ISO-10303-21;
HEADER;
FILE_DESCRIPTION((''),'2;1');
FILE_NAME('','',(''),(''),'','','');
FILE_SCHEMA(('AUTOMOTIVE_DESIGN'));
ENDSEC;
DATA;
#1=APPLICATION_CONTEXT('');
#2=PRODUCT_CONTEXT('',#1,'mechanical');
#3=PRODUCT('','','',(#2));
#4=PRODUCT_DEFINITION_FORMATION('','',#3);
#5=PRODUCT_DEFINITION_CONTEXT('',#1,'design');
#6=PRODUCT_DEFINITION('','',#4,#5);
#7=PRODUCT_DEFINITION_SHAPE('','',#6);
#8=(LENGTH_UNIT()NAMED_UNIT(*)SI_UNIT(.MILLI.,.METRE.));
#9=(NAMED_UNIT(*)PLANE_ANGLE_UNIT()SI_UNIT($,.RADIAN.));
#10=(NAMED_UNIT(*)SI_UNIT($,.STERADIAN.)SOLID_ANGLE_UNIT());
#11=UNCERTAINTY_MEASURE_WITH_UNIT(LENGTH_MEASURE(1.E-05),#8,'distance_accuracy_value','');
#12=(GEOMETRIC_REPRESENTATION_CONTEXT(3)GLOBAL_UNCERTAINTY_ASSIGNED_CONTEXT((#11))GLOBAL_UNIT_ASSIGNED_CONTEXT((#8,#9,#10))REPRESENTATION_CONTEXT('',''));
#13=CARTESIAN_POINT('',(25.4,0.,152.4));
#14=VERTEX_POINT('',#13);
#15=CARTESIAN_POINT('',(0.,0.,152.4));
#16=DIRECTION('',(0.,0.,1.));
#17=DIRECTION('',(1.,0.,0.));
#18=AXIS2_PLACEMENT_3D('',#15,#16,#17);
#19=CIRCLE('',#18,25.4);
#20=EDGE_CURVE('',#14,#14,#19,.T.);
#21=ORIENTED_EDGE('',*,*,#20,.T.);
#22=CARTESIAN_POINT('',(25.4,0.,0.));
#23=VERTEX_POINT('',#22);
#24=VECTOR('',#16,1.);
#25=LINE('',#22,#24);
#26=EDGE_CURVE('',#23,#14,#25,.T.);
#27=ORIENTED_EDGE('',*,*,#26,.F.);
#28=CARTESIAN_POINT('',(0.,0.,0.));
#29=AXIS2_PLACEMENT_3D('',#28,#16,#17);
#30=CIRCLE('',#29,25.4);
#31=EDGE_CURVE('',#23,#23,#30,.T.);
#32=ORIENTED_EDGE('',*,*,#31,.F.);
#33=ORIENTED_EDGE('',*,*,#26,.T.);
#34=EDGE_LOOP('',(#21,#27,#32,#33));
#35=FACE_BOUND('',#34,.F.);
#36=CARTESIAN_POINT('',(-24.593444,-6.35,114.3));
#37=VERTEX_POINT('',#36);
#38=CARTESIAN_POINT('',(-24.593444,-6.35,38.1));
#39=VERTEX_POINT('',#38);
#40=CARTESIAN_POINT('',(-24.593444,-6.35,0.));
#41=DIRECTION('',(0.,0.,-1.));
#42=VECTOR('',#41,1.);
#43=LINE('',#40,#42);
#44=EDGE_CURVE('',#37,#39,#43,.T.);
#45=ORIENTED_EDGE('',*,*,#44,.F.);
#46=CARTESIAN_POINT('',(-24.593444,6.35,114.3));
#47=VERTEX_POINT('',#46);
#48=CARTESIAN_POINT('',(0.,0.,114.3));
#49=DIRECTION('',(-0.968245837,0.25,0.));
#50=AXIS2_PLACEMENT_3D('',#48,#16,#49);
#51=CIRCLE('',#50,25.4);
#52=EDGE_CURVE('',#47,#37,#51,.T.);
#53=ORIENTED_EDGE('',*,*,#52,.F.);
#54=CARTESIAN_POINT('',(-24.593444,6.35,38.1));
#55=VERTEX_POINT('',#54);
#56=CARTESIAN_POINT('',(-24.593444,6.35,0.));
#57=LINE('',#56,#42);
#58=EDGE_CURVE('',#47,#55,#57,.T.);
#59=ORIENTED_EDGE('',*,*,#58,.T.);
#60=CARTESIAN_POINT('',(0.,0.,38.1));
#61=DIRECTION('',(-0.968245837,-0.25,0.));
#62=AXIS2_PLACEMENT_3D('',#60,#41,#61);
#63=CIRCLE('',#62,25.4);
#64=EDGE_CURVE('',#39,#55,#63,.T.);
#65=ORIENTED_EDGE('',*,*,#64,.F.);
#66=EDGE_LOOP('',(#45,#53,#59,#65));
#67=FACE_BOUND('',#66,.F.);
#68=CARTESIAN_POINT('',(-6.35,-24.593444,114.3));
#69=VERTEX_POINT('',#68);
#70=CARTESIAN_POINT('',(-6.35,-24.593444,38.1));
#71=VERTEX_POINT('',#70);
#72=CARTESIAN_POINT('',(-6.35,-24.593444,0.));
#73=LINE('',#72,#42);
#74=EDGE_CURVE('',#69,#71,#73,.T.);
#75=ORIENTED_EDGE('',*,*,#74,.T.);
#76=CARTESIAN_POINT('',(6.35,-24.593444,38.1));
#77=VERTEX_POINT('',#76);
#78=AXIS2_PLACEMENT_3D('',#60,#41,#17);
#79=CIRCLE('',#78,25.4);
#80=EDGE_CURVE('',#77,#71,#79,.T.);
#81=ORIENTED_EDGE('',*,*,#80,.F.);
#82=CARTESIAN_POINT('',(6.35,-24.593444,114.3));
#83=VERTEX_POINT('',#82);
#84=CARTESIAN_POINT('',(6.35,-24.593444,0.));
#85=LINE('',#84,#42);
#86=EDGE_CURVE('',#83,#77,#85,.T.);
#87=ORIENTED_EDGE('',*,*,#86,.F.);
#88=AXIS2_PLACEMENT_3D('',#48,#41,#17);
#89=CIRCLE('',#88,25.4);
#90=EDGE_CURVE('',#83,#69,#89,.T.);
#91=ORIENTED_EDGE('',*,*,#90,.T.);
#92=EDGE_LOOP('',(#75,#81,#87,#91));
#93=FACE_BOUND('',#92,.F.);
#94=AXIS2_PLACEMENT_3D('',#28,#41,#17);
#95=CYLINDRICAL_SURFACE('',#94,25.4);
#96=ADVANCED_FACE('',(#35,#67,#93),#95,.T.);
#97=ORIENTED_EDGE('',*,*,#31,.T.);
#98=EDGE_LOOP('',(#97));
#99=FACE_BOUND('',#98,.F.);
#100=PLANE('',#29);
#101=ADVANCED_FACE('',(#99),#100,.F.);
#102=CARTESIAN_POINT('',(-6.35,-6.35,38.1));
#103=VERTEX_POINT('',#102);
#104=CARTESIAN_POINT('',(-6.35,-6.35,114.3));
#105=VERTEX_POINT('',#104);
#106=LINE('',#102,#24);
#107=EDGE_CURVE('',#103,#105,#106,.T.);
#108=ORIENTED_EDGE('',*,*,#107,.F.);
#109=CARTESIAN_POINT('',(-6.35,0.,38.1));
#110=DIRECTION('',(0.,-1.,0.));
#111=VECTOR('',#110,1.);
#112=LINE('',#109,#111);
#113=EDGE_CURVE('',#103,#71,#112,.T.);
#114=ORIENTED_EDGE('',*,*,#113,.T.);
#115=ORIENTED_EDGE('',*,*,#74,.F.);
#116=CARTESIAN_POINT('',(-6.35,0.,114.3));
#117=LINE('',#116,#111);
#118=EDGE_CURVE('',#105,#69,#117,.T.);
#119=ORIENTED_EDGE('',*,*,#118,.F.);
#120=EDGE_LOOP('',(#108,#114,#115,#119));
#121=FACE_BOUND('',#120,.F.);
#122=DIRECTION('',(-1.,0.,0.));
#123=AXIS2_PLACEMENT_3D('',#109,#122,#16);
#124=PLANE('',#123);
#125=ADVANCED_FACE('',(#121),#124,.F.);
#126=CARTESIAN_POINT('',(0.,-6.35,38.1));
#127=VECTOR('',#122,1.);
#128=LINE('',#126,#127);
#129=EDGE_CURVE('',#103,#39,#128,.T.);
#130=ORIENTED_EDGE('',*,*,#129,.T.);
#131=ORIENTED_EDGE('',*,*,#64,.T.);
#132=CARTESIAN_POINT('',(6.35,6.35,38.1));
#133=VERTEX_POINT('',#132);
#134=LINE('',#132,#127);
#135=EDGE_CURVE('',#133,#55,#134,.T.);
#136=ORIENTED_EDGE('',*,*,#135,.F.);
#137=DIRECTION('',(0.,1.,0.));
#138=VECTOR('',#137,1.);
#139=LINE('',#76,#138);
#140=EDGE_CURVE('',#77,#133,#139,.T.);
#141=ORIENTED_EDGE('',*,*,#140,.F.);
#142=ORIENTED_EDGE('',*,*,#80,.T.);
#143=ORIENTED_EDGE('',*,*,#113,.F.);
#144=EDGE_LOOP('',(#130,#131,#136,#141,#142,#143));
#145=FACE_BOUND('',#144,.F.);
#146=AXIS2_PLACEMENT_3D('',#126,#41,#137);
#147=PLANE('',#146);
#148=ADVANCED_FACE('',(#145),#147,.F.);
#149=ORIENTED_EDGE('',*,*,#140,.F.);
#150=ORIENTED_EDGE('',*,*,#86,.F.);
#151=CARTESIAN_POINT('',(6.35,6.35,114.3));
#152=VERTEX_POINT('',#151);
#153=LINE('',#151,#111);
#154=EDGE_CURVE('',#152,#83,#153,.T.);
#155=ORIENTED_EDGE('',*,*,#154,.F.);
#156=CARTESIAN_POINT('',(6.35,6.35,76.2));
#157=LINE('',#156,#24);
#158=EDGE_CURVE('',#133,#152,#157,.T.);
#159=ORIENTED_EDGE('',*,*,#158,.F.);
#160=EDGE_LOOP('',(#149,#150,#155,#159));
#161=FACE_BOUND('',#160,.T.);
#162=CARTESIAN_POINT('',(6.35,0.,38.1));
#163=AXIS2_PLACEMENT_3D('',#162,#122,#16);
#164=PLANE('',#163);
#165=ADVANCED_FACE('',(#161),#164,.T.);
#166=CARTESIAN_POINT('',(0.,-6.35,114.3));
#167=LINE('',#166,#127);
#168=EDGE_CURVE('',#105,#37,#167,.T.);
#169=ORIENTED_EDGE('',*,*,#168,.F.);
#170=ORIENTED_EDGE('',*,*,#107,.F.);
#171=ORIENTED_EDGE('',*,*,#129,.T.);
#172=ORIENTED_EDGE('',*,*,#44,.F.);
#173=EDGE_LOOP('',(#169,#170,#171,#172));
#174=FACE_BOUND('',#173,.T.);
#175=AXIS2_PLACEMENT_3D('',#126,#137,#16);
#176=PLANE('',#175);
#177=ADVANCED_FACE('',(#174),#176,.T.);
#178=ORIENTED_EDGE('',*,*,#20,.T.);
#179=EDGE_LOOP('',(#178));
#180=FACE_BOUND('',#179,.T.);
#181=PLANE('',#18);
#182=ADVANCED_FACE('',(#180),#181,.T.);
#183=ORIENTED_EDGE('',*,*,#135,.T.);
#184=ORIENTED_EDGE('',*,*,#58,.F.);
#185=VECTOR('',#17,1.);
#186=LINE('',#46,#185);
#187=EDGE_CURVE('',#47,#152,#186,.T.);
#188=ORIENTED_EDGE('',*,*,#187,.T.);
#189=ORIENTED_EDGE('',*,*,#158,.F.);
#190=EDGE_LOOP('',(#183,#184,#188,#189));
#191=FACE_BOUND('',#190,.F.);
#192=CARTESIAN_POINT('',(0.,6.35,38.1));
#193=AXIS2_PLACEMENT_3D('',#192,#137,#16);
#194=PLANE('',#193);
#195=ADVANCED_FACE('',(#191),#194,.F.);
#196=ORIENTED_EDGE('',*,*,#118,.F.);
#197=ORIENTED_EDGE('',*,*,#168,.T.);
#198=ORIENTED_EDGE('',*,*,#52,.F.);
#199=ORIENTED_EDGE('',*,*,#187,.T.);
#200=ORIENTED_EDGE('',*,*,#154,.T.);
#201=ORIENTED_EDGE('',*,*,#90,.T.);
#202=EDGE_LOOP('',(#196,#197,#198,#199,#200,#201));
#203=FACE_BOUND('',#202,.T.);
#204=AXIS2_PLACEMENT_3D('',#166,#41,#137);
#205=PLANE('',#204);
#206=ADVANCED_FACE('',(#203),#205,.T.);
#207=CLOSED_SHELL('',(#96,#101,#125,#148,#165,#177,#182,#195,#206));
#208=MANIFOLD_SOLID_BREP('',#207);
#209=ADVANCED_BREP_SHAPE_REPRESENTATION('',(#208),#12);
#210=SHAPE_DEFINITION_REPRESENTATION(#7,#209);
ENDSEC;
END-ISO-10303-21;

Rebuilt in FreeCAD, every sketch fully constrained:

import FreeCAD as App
import Part
import Sketcher
from FreeCAD import Vector
Q = App.Units.Quantity

doc = App.newDocument("Part")
body = doc.addObject("PartDesign::Body", "Body")

# Sketch on XY plane
sketch1 = body.newObject("Sketcher::SketchObject", "Sketch")
sketch1.AttachmentSupport = (doc.getObject("XY_Plane"), [""])
sketch1.MapMode = "FlatFace"
sketch1.addGeometry(Part.Circle(Vector(0, 0, 0), Vector(0, 0, 1), 25), False)
sketch1.addConstraint([
    Sketcher.Constraint("Coincident", 0, 3, -1, 1),
    Sketcher.Constraint("Diameter", 0, Q("2 in")),
])
pad1 = body.newObject("PartDesign::Pad", "Pad")
pad1.Profile = sketch1
pad1.Length = Q("6 in")

# Sketch on YZ plane
sketch2 = body.newObject("Sketcher::SketchObject", "Sketch001")
sketch2.AttachmentSupport = (doc.getObject("YZ_Plane"), [""])
sketch2.MapMode = "FlatFace"
sketch2.addGeometry([
    Part.LineSegment(Vector(-6, 114, 0), Vector(-6, 38, 0)),
    Part.LineSegment(Vector(-6, 38, 0), Vector(6, 38, 0)),
    Part.LineSegment(Vector(6, 38, 0), Vector(6, 114, 0)),
    Part.LineSegment(Vector(6, 114, 0), Vector(-6, 114, 0)),
], False)
sketch2.addConstraint([
    Sketcher.Constraint("Coincident", 0, 2, 1, 1),
    Sketcher.Constraint("Coincident", 1, 2, 2, 1),
    Sketcher.Constraint("Coincident", 2, 2, 3, 1),
    Sketcher.Constraint("Coincident", 3, 2, 0, 1),
    Sketcher.Constraint("Vertical", 0),
    Sketcher.Constraint("Horizontal", 1),
    Sketcher.Constraint("Vertical", 2),
    Sketcher.Constraint("Horizontal", 3),
    Sketcher.Constraint("DistanceY", 0, 2, 0, 1, Q("3 in")),
    Sketcher.Constraint("DistanceX", 1, 1, 1, 2, Q("0.5 in")),
    Sketcher.Constraint("DistanceY", -1, 1, 0, 2, Q("1.5 in")),
    Sketcher.Constraint("DistanceX", 0, 2, -1, 1, Q("0.25 in")),
])
pocket1 = body.newObject("PartDesign::Pocket", "Pocket")
pocket1.Profile = sketch2
pocket1.Length = Q("1 in")

# Sketch on XZ plane
sketch3 = body.newObject("Sketcher::SketchObject", "Sketch002")
sketch3.AttachmentSupport = (doc.getObject("XZ_Plane"), [""])
sketch3.MapMode = "FlatFace"
sketch3.addGeometry([
    Part.LineSegment(Vector(-6, 114, 0), Vector(-6, 38, 0)),
    Part.LineSegment(Vector(-6, 38, 0), Vector(6, 38, 0)),
    Part.LineSegment(Vector(6, 38, 0), Vector(6, 114, 0)),
    Part.LineSegment(Vector(6, 114, 0), Vector(-6, 114, 0)),
], False)
sketch3.addConstraint([
    Sketcher.Constraint("Coincident", 0, 2, 1, 1),
    Sketcher.Constraint("Coincident", 1, 2, 2, 1),
    Sketcher.Constraint("Coincident", 2, 2, 3, 1),
    Sketcher.Constraint("Coincident", 3, 2, 0, 1),
    Sketcher.Constraint("Vertical", 0),
    Sketcher.Constraint("Horizontal", 1),
    Sketcher.Constraint("Vertical", 2),
    Sketcher.Constraint("Horizontal", 3),
    Sketcher.Constraint("DistanceY", 0, 2, 0, 1, Q("3 in")),
    Sketcher.Constraint("DistanceX", 1, 1, 1, 2, Q("0.5 in")),
    Sketcher.Constraint("DistanceY", -1, 1, 0, 2, Q("1.5 in")),
    Sketcher.Constraint("DistanceX", 0, 2, -1, 1, Q("0.25 in")),
])
pocket2 = body.newObject("PartDesign::Pocket", "Pocket001")
pocket2.Profile = sketch3
pocket2.Length = Q("1.5 in")
pocket2.Reversed = True

# Sketch on XZ plane
sketch4 = body.newObject("Sketcher::SketchObject", "Sketch003")
sketch4.AttachmentSupport = (doc.getObject("XZ_Plane"), [""])
sketch4.MapMode = "FlatFace"
sketch4.addGeometry([
    Part.LineSegment(Vector(0, 114, 0), Vector(0, 38, 0)),
    Part.LineSegment(Vector(0, 38, 0), Vector(6, 38, 0)),
    Part.LineSegment(Vector(6, 38, 0), Vector(6, 114, 0)),
    Part.LineSegment(Vector(6, 114, 0), Vector(0, 114, 0)),
], False)
sketch4.addConstraint([
    Sketcher.Constraint("Coincident", 0, 2, 1, 1),
    Sketcher.Constraint("Coincident", 1, 2, 2, 1),
    Sketcher.Constraint("Coincident", 2, 2, 3, 1),
    Sketcher.Constraint("Coincident", 3, 2, 0, 1),
    Sketcher.Constraint("Vertical", 0),
    Sketcher.Constraint("Horizontal", 1),
    Sketcher.Constraint("Vertical", 2),
    Sketcher.Constraint("Horizontal", 3),
    Sketcher.Constraint("PointOnObject", 0, 2, -2),
    Sketcher.Constraint("DistanceY", 0, 2, 0, 1, Q("3 in")),
    Sketcher.Constraint("DistanceX", 1, 1, 1, 2, Q("0.25 in")),
    Sketcher.Constraint("DistanceY", -1, 1, 0, 2, Q("1.5 in")),
])
pocket3 = body.newObject("PartDesign::Pocket", "Pocket002")
pocket3.Profile = sketch4
pocket3.Length = Q("0.25 in")

doc.recompute()
